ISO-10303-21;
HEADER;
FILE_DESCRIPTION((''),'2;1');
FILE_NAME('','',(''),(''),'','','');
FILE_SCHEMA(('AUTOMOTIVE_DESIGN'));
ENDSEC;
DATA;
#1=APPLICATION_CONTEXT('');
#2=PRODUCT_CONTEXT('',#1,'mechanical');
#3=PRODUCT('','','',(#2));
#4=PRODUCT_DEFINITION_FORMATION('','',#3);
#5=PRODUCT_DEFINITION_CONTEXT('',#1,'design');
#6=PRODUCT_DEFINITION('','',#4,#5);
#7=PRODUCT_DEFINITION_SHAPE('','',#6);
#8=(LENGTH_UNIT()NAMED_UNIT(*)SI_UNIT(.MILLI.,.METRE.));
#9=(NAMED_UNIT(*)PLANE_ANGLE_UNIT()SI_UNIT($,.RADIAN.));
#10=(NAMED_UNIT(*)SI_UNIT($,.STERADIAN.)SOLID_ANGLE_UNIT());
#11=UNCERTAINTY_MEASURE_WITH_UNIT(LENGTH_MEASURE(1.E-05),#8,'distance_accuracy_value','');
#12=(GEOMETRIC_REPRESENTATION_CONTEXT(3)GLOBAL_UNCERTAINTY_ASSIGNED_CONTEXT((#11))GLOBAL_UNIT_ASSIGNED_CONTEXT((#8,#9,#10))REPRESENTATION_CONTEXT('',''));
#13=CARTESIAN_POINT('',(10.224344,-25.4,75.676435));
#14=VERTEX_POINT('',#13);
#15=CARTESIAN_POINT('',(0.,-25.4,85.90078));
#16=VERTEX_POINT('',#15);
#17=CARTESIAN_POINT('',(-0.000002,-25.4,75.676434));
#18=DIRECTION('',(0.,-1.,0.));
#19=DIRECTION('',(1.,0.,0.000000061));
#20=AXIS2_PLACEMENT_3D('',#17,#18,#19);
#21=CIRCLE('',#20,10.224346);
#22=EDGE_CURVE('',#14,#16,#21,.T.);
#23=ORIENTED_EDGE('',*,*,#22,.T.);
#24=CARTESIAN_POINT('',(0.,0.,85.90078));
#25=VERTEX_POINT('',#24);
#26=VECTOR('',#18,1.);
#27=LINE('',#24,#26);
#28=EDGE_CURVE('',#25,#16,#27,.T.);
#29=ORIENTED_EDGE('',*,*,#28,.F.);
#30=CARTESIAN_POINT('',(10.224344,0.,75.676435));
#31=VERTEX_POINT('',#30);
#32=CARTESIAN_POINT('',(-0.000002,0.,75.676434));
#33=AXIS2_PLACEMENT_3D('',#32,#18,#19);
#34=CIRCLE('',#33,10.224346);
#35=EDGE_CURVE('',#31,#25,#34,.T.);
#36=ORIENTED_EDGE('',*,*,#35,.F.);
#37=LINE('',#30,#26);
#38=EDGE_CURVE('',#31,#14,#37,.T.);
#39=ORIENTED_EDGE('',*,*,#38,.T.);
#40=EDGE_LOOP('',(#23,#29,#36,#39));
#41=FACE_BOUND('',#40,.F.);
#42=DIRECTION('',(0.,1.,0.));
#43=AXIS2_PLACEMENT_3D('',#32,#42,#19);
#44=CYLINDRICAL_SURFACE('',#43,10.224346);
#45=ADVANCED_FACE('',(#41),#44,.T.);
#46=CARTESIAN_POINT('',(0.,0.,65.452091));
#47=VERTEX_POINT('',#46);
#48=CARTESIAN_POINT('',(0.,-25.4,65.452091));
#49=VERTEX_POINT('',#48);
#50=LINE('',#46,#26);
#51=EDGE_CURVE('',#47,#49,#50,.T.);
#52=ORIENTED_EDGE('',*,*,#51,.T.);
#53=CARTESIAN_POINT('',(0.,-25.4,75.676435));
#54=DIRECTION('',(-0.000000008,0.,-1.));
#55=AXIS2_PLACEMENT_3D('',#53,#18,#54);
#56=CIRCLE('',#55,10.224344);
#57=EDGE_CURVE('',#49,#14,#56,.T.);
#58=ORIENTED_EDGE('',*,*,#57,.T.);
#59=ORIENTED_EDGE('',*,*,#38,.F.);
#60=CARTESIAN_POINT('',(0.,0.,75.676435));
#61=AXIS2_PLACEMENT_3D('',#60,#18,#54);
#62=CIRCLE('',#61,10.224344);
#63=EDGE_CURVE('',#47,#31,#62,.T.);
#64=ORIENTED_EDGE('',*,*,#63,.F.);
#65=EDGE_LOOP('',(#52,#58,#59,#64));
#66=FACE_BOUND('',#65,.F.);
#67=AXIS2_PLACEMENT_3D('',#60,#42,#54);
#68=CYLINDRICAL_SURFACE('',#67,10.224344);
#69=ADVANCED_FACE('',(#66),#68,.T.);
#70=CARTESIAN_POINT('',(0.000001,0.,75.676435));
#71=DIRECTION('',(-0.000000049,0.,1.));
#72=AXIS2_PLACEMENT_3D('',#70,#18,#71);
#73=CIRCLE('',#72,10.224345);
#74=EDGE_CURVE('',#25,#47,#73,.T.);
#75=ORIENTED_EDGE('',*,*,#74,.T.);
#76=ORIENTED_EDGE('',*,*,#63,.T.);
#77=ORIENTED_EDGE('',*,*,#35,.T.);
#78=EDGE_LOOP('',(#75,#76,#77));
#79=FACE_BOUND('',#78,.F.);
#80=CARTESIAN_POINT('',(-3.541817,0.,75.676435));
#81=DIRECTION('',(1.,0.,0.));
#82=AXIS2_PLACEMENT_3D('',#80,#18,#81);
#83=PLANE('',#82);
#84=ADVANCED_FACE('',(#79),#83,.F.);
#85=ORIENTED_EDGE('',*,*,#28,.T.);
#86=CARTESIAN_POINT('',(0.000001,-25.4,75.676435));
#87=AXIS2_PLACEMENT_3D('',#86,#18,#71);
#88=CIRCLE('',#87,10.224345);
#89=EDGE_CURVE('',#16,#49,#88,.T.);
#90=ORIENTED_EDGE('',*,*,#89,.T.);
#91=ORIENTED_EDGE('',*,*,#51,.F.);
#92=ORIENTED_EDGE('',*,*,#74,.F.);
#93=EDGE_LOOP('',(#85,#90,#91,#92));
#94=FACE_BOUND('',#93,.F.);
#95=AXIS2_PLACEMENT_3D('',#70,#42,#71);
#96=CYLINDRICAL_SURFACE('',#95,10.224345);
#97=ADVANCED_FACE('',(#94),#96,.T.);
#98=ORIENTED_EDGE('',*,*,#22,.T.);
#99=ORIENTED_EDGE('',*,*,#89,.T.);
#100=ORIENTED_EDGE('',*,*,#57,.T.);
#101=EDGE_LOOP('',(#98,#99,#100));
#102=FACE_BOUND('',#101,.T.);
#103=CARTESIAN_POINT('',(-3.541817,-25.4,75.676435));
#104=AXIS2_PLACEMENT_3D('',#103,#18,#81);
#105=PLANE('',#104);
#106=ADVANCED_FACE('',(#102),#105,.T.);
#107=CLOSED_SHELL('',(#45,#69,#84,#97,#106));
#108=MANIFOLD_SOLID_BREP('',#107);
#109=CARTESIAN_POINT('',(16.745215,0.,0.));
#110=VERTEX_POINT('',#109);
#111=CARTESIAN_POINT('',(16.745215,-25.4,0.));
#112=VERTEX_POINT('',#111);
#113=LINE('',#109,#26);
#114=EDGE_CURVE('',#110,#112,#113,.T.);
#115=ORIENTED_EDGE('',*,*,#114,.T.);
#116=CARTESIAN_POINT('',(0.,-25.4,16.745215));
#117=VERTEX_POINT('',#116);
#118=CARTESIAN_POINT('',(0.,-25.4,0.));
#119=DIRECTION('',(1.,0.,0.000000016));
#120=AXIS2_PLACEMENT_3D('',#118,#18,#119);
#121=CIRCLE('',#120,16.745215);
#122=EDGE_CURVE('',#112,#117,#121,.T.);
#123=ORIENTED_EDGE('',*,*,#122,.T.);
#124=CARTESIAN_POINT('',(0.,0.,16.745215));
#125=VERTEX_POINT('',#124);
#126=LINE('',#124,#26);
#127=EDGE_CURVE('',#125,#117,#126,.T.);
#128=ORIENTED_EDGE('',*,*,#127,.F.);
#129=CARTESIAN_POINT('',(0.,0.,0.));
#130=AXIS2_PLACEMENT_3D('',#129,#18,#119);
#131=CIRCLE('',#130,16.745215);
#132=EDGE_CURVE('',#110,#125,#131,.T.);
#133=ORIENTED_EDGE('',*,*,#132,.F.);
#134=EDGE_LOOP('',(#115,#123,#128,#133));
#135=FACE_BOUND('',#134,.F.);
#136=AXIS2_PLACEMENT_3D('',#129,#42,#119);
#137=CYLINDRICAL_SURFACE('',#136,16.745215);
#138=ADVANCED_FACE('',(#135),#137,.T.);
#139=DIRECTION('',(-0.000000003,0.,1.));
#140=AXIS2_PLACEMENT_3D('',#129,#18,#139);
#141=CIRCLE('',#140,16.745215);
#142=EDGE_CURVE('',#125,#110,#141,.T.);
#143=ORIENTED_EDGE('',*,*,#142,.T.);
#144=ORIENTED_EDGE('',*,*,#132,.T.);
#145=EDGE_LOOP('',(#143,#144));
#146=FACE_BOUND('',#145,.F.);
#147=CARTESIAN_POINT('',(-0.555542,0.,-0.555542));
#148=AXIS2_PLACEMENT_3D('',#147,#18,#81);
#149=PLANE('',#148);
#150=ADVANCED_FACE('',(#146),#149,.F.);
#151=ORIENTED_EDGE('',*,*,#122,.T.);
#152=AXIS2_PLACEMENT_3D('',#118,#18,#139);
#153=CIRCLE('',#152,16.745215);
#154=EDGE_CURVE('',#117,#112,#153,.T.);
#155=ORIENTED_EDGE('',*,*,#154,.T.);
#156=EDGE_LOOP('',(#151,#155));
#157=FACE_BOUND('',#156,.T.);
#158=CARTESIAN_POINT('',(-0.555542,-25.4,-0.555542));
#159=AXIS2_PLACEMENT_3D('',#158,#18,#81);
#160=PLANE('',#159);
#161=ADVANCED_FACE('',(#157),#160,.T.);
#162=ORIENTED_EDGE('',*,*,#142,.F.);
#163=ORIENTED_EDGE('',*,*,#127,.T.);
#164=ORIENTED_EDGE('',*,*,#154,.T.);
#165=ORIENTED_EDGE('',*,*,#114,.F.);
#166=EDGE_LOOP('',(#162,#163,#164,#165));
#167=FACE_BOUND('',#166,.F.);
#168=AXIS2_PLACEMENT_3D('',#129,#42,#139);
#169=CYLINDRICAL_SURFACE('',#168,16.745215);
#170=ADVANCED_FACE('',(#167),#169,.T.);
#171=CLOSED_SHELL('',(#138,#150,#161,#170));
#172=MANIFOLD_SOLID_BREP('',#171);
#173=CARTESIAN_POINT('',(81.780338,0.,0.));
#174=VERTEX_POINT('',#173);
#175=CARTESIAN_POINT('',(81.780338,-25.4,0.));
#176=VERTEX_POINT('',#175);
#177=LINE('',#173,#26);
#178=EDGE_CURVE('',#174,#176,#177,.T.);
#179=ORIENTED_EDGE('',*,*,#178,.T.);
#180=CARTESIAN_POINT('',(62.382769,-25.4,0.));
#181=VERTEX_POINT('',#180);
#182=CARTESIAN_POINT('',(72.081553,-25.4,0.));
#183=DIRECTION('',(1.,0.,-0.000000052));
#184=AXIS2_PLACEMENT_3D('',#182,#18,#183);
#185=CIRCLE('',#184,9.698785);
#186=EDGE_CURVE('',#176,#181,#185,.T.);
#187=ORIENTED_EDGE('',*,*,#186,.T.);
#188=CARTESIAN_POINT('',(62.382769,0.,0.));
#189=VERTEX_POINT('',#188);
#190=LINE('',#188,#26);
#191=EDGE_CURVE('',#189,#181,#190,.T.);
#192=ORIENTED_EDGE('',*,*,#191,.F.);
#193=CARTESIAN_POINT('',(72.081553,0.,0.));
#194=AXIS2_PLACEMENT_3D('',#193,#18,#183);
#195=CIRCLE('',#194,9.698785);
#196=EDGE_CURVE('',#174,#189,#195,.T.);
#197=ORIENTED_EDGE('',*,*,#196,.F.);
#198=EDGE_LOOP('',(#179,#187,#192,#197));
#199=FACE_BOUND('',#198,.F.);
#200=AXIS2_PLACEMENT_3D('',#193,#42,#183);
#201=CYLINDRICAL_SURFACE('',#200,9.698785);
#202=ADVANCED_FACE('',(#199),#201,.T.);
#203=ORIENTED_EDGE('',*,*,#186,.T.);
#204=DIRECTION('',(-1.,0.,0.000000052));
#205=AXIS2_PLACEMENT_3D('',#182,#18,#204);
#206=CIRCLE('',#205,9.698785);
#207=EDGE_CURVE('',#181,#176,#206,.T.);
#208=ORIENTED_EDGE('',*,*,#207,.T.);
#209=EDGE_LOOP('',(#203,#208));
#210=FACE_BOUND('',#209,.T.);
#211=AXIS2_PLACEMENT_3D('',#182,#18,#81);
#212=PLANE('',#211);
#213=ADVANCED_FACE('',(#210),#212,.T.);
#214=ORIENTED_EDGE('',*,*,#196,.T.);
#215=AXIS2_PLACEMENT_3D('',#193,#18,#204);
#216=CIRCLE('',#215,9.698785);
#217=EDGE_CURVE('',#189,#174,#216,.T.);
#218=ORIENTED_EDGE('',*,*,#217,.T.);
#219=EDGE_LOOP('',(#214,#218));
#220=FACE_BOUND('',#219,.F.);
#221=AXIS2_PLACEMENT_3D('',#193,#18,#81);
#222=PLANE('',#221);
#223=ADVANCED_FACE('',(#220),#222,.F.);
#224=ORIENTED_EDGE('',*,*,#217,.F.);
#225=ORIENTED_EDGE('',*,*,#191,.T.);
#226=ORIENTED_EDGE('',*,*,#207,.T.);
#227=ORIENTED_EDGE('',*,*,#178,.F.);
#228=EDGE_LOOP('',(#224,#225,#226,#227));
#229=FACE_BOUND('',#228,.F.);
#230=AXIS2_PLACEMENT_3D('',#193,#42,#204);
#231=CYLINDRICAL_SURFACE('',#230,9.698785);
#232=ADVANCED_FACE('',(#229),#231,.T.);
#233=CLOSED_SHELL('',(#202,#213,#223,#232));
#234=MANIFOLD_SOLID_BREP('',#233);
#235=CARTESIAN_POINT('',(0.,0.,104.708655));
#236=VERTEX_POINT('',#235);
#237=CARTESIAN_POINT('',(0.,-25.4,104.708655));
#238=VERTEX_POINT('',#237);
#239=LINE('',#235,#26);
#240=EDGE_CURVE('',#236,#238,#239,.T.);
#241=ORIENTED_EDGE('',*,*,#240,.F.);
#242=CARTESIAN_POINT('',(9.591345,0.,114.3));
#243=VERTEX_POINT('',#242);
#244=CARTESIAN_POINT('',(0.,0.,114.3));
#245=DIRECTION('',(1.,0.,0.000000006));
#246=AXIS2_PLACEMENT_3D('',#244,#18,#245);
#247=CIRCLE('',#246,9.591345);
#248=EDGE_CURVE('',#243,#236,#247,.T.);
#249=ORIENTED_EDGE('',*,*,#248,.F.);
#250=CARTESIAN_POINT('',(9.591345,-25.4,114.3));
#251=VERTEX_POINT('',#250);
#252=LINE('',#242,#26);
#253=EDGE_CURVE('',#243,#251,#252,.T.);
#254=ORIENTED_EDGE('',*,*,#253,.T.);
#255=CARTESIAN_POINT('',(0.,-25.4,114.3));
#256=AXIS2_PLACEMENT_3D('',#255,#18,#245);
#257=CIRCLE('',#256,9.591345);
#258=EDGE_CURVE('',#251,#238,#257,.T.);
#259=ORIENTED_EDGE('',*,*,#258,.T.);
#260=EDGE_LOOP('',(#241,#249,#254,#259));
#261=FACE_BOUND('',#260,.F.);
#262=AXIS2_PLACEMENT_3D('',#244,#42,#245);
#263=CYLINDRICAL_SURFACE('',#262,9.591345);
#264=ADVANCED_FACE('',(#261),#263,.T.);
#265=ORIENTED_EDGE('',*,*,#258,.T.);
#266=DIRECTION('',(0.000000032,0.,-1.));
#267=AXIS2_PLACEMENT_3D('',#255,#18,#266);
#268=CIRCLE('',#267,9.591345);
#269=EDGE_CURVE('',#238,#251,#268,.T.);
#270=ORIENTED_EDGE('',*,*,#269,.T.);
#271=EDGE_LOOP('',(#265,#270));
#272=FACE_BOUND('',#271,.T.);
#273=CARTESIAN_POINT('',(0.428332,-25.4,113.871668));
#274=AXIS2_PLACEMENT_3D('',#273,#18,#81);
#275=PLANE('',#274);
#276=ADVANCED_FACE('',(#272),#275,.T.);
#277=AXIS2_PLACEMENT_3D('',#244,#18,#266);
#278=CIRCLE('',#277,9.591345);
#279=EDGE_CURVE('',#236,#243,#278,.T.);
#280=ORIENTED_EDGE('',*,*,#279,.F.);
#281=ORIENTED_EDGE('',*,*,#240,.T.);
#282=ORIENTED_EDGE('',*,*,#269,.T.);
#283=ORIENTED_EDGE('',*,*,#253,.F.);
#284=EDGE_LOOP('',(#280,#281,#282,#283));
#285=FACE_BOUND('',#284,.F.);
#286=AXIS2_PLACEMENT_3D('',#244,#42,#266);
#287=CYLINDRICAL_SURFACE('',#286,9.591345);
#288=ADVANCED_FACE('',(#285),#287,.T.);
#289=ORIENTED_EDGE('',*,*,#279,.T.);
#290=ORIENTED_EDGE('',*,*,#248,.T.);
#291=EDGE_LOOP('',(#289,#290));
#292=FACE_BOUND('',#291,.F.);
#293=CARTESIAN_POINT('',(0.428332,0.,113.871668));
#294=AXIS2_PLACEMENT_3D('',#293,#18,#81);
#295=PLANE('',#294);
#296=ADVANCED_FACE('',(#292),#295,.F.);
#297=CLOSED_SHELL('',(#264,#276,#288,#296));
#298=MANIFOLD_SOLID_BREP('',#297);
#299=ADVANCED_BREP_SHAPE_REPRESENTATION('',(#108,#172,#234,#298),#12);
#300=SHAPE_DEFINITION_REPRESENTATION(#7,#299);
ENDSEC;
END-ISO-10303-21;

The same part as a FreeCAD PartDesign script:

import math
import FreeCAD as App
import Part
import Sketcher

V = App.Vector
Q = App.Units.Quantity

doc = App.newDocument("Part")
body = doc.addObject("PartDesign::Body", "Body")
body.AllowCompound = True

sketch1 = body.newObject("Sketcher::SketchObject", "Sketch")
sketch1.AttachmentSupport = (doc.getObject("XZ_Plane"), [""])
sketch1.MapMode = "FlatFace"
sketch1.addGeometry(Part.ArcOfCircle(Part.Circle(V(0, 0, 0), V(0, 0, 1), 16.745215), math.radians(90), math.radians(360)), False)
sketch1.addGeometry(Part.ArcOfCircle(Part.Circle(V(0, 0, 0), V(0, 0, 1), 16.745215), math.radians(0.000001), math.radians(89.999999)), False)
sketch1.addGeometry(Part.ArcOfCircle(Part.Circle(V(0, 114.3, 0), V(0, 0, 1), 9.591345), math.radians(0), math.radians(270)), False)
sketch1.addGeometry(Part.ArcOfCircle(Part.Circle(V(0, 114.3, 0), V(0, 0, 1), 9.591345), math.radians(-89.999998), math.radians(-0.000002)), False)
sketch1.addGeometry(Part.ArcOfCircle(Part.Circle(V(0, 75.676435, 0), V(0, 0, 1), 10.224345), math.radians(90.000003), math.radians(269.999997)), False)
sketch1.addGeometry(Part.ArcOfCircle(Part.Circle(V(0, 75.676435, 0), V(0, 0, 1), 10.224344), math.radians(-90), math.radians(0)), False)
sketch1.addGeometry(Part.ArcOfCircle(Part.Circle(V(-0.000002, 75.676434, 0), V(0, 0, 1), 10.224346), math.radians(0.000003), math.radians(89.999991)), False)
sketch1.addGeometry(Part.ArcOfCircle(Part.Circle(V(72.081553, 0, 0), V(0, 0, 1), 9.698785), math.radians(-0.000003), math.radians(180.000003)), False)
sketch1.addGeometry(Part.ArcOfCircle(Part.Circle(V(72.081553, 0, 0), V(0, 0, 1), 9.698785), math.radians(179.999997), math.radians(360.000003)), False)
sketch1.addConstraint(Sketcher.Constraint("Tangent", 0, 1, 1, 2))
sketch1.addConstraint(Sketcher.Constraint("Coincident", 1, 1, 0, 2))
sketch1.addConstraint(Sketcher.Constraint("Tangent", 2, 1, 3, 2))
sketch1.addConstraint(Sketcher.Constraint("Coincident", 3, 1, 2, 2))
sketch1.addConstraint(Sketcher.Constraint("Tangent", 4, 2, 5, 1))
sketch1.addConstraint(Sketcher.Constraint("Tangent", 5, 2, 6, 1))
sketch1.addConstraint(Sketcher.Constraint("Tangent", 6, 2, 4, 1))
sketch1.addConstraint(Sketcher.Constraint("Tangent", 7, 1, 8, 2))
sketch1.addConstraint(Sketcher.Constraint("Coincident", 8, 1, 7, 2))
sketch1.addConstraint(Sketcher.Constraint("Coincident", 0, 3, -1, 1))
sketch1.addConstraint(Sketcher.Constraint("PointOnObject", 2, 3, -2))
sketch1.addConstraint(Sketcher.Constraint("PointOnObject", 4, 3, -2))
sketch1.addConstraint(Sketcher.Constraint("PointOnObject", 7, 3, -1))
sketch1.addConstraint(Sketcher.Constraint("PointOnObject", 0, 1, -2))
sketch1.addConstraint(Sketcher.Constraint("PointOnObject", 1, 1, -1))
sketch1.addConstraint(Sketcher.Constraint("PointOnObject", 3, 1, -2))
sketch1.addConstraint(Sketcher.Constraint("PointOnObject", 4, 2, -2))
sketch1.addConstraint(Sketcher.Constraint("PointOnObject", 6, 2, -2))
sketch1.addConstraint(Sketcher.Constraint("PointOnObject", 7, 1, -1))
sketch1.addConstraint(Sketcher.Constraint("PointOnObject", 8, 1, -1))
sketch1.addConstraint(Sketcher.Constraint("Horizontal", 3, 3, 2, 1))
sketch1.addConstraint(Sketcher.Constraint("Horizontal", 6, 3, 5, 2))
sketch1.addConstraint(Sketcher.Constraint("DistanceY", -1, 1, 2, 3, Q("4.5 in")))
sketch1.addConstraint(Sketcher.Constraint("Radius", 0, 16.745215))
sketch1.addConstraint(Sketcher.Constraint("Radius", 2, 9.591345))
sketch1.addConstraint(Sketcher.Constraint("Radius", 4, 10.224345))
sketch1.addConstraint(Sketcher.Constraint("Radius", 7, 9.698785))
sketch1.addConstraint(Sketcher.Constraint("DistanceY", -1, 1, 4, 2, 65.452091))
sketch1.addConstraint(Sketcher.Constraint("DistanceX", -1, 1, 8, 1, 62.382769))
pad1 = body.newObject("PartDesign::Pad", "Pad")
pad1.Profile = sketch1
pad1.Length = Q("1 in")

doc.recompute()
